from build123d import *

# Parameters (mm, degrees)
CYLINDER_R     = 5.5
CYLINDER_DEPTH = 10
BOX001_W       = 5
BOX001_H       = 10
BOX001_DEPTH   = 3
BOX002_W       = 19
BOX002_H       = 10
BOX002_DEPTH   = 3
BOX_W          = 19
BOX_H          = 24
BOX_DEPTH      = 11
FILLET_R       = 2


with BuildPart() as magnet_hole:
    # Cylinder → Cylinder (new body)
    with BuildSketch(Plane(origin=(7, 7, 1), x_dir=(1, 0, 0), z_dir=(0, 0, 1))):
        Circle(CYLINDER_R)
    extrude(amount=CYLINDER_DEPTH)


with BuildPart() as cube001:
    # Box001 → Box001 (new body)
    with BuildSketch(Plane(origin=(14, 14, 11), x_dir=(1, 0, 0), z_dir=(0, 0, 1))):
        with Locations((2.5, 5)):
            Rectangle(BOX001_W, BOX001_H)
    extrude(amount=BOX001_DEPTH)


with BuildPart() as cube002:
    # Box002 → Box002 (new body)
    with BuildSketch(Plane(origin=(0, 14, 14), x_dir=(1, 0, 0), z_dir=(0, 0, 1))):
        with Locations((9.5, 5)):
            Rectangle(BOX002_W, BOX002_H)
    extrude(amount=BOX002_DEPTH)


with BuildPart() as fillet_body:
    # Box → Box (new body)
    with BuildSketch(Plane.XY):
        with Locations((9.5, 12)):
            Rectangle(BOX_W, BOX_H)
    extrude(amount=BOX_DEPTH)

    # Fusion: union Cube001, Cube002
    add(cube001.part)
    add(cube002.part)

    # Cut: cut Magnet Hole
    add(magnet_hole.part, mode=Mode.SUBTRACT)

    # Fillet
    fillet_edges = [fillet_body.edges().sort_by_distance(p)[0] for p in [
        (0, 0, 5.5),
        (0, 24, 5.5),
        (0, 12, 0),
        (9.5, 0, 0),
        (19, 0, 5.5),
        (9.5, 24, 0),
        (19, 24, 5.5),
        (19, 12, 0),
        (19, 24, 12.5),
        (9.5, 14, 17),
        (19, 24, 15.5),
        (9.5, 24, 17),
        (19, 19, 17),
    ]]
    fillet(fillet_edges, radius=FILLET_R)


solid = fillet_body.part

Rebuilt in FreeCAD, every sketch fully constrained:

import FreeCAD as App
import Part
import Sketcher
from FreeCAD import Vector
Q = App.Units.Quantity


def edges_at(feature, points):
    """Names of the edges that pass closest to the given points."""
    edges = feature.Shape.Edges
    near = lambda p: min(range(len(edges)), key=lambda i: edges[i].distToShape(Part.Vertex(*p))[0])
    return sorted({f"Edge{near(p) + 1}" for p in points})


def add_polygon(sketch, points):
    """Adds a closed chain of lines whose ends are joined by coincident constraints."""
    first, n = sketch.GeometryCount, len(points)
    for a, b in zip(points, points[1:] + points[:1]):
        sketch.addGeometry(Part.LineSegment(App.Vector(*a, 0), App.Vector(*b, 0)), False)
    for i in range(n):
        sketch.addConstraint(Sketcher.Constraint("Coincident", first + i, 2, first + (i + 1) % n, 1))

doc = App.newDocument("Part")
body = doc.addObject("PartDesign::Body", "Body")

sketch1 = body.newObject("Sketcher::SketchObject", "Sketch")
sketch1.AttachmentSupport = (doc.getObject("XY_Plane"), [""])
sketch1.MapMode = "FlatFace"
sketch1.AttachmentOffset = App.Placement(Vector(0, 0, 1), App.Rotation())
sketch1.addGeometry(Part.Circle(Vector(7, 7, 0), Vector(0, 0, 1), 6), False)
sketch1.addConstraint([
    Sketcher.Constraint("Diameter", 0, Q("11 mm")),
    Sketcher.Constraint("DistanceX", -1, 1, 0, 3, Q("7 mm")),
    Sketcher.Constraint("DistanceY", -1, 1, 0, 3, Q("7 mm")),
])
pad1 = body.newObject("PartDesign::Pad", "Pad")
pad1.Profile = sketch1
pad1.Length = 10
body2 = doc.addObject("PartDesign::Body", "Body001")

sketch2 = body2.newObject("Sketcher::SketchObject", "Sketch001")
sketch2.AttachmentSupport = (doc.getObject("XY_Plane001"), [""])
sketch2.MapMode = "FlatFace"
sketch2.AttachmentOffset = App.Placement(Vector(0, 0, 11), App.Rotation())
add_polygon(sketch2, [(14, 24), (14, 14), (19, 14), (19, 24)])
sketch2.addConstraint([
    Sketcher.Constraint("Vertical", 0),
    Sketcher.Constraint("Horizontal", 1),
    Sketcher.Constraint("Vertical", 2),
    Sketcher.Constraint("Horizontal", 3),
    Sketcher.Constraint("DistanceX", 1, 1, 1, 2, Q("5 mm")),
    Sketcher.Constraint("DistanceY", 0, 2, 0, 1, Q("10 mm")),
    Sketcher.Constraint("DistanceX", -1, 1, 0, 2, Q("14 mm")),
    Sketcher.Constraint("DistanceY", -1, 1, 0, 2, Q("14 mm")),
])
pad2 = body2.newObject("PartDesign::Pad", "Pad001")
pad2.Profile = sketch2
pad2.Length = 3
body3 = doc.addObject("PartDesign::Body", "Body002")

sketch3 = body3.newObject("Sketcher::SketchObject", "Sketch002")
sketch3.AttachmentSupport = (doc.getObject("XY_Plane002"), [""])
sketch3.MapMode = "FlatFace"
sketch3.AttachmentOffset = App.Placement(Vector(0, 0, 14), App.Rotation())
add_polygon(sketch3, [(0, 24), (0, 14), (19, 14), (19, 24)])
sketch3.addConstraint([
    Sketcher.Constraint("Vertical", 0),
    Sketcher.Constraint("Horizontal", 1),
    Sketcher.Constraint("Vertical", 2),
    Sketcher.Constraint("Horizontal", 3),
    Sketcher.Constraint("PointOnObject", 0, 2, -2),
    Sketcher.Constraint("DistanceX", 1, 1, 1, 2, Q("19 mm")),
    Sketcher.Constraint("DistanceY", 0, 2, 0, 1, Q("10 mm")),
    Sketcher.Constraint("DistanceY", -1, 1, 0, 2, Q("14 mm")),
])
pad3 = body3.newObject("PartDesign::Pad", "Pad002")
pad3.Profile = sketch3
pad3.Length = 3
body4 = doc.addObject("PartDesign::Body", "Body003")

sketch4 = body4.newObject("Sketcher::SketchObject", "Sketch003")
sketch4.AttachmentSupport = (doc.getObject("XY_Plane003"), [""])
sketch4.MapMode = "FlatFace"
add_polygon(sketch4, [(0, 24), (0, 0), (19, 0), (19, 24)])
sketch4.addConstraint([
    Sketcher.Constraint("Vertical", 0),
    Sketcher.Constraint("Horizontal", 1),
    Sketcher.Constraint("Vertical", 2),
    Sketcher.Constraint("Horizontal", 3),
    Sketcher.Constraint("Coincident", 0, 2, -1, 1),
    Sketcher.Constraint("DistanceX", 1, 1, 1, 2, Q("19 mm")),
    Sketcher.Constraint("DistanceY", 0, 2, 0, 1, Q("24 mm")),
])
pad4 = body4.newObject("PartDesign::Pad", "Pad003")
pad4.Profile = sketch4
pad4.Length = 11
doc.recompute()

boolean = body4.newObject("PartDesign::Boolean", "Boolean")
boolean.Type = "Fuse"
boolean.addObjects([body2])
doc.recompute()

boolean2 = body4.newObject("PartDesign::Boolean", "Boolean001")
boolean2.Type = "Fuse"
boolean2.addObjects([body3])
doc.recompute()

boolean3 = body4.newObject("PartDesign::Boolean", "Boolean002")
boolean3.Type = "Cut"
boolean3.addObjects([body])
doc.recompute()

fillet = body4.newObject("PartDesign::Fillet", "Fillet")
fillet.Base = (boolean3, edges_at(boolean3, [
    (0, 0, 5.5),
    (0, 24, 5.5),
    (0, 12, 0),
    (9.5, 0, 0),
    (19, 0, 5.5),
    (9.5, 24, 0),
    (19, 24, 8.5),
    (19, 12, 0),
    (19, 24, 8.5),
    (9.5, 14, 17),
    (19, 24, 8.5),
    (9.5, 24, 17),
    (19, 19, 17),
]))
fillet.Radius = 2

doc.recompute()
